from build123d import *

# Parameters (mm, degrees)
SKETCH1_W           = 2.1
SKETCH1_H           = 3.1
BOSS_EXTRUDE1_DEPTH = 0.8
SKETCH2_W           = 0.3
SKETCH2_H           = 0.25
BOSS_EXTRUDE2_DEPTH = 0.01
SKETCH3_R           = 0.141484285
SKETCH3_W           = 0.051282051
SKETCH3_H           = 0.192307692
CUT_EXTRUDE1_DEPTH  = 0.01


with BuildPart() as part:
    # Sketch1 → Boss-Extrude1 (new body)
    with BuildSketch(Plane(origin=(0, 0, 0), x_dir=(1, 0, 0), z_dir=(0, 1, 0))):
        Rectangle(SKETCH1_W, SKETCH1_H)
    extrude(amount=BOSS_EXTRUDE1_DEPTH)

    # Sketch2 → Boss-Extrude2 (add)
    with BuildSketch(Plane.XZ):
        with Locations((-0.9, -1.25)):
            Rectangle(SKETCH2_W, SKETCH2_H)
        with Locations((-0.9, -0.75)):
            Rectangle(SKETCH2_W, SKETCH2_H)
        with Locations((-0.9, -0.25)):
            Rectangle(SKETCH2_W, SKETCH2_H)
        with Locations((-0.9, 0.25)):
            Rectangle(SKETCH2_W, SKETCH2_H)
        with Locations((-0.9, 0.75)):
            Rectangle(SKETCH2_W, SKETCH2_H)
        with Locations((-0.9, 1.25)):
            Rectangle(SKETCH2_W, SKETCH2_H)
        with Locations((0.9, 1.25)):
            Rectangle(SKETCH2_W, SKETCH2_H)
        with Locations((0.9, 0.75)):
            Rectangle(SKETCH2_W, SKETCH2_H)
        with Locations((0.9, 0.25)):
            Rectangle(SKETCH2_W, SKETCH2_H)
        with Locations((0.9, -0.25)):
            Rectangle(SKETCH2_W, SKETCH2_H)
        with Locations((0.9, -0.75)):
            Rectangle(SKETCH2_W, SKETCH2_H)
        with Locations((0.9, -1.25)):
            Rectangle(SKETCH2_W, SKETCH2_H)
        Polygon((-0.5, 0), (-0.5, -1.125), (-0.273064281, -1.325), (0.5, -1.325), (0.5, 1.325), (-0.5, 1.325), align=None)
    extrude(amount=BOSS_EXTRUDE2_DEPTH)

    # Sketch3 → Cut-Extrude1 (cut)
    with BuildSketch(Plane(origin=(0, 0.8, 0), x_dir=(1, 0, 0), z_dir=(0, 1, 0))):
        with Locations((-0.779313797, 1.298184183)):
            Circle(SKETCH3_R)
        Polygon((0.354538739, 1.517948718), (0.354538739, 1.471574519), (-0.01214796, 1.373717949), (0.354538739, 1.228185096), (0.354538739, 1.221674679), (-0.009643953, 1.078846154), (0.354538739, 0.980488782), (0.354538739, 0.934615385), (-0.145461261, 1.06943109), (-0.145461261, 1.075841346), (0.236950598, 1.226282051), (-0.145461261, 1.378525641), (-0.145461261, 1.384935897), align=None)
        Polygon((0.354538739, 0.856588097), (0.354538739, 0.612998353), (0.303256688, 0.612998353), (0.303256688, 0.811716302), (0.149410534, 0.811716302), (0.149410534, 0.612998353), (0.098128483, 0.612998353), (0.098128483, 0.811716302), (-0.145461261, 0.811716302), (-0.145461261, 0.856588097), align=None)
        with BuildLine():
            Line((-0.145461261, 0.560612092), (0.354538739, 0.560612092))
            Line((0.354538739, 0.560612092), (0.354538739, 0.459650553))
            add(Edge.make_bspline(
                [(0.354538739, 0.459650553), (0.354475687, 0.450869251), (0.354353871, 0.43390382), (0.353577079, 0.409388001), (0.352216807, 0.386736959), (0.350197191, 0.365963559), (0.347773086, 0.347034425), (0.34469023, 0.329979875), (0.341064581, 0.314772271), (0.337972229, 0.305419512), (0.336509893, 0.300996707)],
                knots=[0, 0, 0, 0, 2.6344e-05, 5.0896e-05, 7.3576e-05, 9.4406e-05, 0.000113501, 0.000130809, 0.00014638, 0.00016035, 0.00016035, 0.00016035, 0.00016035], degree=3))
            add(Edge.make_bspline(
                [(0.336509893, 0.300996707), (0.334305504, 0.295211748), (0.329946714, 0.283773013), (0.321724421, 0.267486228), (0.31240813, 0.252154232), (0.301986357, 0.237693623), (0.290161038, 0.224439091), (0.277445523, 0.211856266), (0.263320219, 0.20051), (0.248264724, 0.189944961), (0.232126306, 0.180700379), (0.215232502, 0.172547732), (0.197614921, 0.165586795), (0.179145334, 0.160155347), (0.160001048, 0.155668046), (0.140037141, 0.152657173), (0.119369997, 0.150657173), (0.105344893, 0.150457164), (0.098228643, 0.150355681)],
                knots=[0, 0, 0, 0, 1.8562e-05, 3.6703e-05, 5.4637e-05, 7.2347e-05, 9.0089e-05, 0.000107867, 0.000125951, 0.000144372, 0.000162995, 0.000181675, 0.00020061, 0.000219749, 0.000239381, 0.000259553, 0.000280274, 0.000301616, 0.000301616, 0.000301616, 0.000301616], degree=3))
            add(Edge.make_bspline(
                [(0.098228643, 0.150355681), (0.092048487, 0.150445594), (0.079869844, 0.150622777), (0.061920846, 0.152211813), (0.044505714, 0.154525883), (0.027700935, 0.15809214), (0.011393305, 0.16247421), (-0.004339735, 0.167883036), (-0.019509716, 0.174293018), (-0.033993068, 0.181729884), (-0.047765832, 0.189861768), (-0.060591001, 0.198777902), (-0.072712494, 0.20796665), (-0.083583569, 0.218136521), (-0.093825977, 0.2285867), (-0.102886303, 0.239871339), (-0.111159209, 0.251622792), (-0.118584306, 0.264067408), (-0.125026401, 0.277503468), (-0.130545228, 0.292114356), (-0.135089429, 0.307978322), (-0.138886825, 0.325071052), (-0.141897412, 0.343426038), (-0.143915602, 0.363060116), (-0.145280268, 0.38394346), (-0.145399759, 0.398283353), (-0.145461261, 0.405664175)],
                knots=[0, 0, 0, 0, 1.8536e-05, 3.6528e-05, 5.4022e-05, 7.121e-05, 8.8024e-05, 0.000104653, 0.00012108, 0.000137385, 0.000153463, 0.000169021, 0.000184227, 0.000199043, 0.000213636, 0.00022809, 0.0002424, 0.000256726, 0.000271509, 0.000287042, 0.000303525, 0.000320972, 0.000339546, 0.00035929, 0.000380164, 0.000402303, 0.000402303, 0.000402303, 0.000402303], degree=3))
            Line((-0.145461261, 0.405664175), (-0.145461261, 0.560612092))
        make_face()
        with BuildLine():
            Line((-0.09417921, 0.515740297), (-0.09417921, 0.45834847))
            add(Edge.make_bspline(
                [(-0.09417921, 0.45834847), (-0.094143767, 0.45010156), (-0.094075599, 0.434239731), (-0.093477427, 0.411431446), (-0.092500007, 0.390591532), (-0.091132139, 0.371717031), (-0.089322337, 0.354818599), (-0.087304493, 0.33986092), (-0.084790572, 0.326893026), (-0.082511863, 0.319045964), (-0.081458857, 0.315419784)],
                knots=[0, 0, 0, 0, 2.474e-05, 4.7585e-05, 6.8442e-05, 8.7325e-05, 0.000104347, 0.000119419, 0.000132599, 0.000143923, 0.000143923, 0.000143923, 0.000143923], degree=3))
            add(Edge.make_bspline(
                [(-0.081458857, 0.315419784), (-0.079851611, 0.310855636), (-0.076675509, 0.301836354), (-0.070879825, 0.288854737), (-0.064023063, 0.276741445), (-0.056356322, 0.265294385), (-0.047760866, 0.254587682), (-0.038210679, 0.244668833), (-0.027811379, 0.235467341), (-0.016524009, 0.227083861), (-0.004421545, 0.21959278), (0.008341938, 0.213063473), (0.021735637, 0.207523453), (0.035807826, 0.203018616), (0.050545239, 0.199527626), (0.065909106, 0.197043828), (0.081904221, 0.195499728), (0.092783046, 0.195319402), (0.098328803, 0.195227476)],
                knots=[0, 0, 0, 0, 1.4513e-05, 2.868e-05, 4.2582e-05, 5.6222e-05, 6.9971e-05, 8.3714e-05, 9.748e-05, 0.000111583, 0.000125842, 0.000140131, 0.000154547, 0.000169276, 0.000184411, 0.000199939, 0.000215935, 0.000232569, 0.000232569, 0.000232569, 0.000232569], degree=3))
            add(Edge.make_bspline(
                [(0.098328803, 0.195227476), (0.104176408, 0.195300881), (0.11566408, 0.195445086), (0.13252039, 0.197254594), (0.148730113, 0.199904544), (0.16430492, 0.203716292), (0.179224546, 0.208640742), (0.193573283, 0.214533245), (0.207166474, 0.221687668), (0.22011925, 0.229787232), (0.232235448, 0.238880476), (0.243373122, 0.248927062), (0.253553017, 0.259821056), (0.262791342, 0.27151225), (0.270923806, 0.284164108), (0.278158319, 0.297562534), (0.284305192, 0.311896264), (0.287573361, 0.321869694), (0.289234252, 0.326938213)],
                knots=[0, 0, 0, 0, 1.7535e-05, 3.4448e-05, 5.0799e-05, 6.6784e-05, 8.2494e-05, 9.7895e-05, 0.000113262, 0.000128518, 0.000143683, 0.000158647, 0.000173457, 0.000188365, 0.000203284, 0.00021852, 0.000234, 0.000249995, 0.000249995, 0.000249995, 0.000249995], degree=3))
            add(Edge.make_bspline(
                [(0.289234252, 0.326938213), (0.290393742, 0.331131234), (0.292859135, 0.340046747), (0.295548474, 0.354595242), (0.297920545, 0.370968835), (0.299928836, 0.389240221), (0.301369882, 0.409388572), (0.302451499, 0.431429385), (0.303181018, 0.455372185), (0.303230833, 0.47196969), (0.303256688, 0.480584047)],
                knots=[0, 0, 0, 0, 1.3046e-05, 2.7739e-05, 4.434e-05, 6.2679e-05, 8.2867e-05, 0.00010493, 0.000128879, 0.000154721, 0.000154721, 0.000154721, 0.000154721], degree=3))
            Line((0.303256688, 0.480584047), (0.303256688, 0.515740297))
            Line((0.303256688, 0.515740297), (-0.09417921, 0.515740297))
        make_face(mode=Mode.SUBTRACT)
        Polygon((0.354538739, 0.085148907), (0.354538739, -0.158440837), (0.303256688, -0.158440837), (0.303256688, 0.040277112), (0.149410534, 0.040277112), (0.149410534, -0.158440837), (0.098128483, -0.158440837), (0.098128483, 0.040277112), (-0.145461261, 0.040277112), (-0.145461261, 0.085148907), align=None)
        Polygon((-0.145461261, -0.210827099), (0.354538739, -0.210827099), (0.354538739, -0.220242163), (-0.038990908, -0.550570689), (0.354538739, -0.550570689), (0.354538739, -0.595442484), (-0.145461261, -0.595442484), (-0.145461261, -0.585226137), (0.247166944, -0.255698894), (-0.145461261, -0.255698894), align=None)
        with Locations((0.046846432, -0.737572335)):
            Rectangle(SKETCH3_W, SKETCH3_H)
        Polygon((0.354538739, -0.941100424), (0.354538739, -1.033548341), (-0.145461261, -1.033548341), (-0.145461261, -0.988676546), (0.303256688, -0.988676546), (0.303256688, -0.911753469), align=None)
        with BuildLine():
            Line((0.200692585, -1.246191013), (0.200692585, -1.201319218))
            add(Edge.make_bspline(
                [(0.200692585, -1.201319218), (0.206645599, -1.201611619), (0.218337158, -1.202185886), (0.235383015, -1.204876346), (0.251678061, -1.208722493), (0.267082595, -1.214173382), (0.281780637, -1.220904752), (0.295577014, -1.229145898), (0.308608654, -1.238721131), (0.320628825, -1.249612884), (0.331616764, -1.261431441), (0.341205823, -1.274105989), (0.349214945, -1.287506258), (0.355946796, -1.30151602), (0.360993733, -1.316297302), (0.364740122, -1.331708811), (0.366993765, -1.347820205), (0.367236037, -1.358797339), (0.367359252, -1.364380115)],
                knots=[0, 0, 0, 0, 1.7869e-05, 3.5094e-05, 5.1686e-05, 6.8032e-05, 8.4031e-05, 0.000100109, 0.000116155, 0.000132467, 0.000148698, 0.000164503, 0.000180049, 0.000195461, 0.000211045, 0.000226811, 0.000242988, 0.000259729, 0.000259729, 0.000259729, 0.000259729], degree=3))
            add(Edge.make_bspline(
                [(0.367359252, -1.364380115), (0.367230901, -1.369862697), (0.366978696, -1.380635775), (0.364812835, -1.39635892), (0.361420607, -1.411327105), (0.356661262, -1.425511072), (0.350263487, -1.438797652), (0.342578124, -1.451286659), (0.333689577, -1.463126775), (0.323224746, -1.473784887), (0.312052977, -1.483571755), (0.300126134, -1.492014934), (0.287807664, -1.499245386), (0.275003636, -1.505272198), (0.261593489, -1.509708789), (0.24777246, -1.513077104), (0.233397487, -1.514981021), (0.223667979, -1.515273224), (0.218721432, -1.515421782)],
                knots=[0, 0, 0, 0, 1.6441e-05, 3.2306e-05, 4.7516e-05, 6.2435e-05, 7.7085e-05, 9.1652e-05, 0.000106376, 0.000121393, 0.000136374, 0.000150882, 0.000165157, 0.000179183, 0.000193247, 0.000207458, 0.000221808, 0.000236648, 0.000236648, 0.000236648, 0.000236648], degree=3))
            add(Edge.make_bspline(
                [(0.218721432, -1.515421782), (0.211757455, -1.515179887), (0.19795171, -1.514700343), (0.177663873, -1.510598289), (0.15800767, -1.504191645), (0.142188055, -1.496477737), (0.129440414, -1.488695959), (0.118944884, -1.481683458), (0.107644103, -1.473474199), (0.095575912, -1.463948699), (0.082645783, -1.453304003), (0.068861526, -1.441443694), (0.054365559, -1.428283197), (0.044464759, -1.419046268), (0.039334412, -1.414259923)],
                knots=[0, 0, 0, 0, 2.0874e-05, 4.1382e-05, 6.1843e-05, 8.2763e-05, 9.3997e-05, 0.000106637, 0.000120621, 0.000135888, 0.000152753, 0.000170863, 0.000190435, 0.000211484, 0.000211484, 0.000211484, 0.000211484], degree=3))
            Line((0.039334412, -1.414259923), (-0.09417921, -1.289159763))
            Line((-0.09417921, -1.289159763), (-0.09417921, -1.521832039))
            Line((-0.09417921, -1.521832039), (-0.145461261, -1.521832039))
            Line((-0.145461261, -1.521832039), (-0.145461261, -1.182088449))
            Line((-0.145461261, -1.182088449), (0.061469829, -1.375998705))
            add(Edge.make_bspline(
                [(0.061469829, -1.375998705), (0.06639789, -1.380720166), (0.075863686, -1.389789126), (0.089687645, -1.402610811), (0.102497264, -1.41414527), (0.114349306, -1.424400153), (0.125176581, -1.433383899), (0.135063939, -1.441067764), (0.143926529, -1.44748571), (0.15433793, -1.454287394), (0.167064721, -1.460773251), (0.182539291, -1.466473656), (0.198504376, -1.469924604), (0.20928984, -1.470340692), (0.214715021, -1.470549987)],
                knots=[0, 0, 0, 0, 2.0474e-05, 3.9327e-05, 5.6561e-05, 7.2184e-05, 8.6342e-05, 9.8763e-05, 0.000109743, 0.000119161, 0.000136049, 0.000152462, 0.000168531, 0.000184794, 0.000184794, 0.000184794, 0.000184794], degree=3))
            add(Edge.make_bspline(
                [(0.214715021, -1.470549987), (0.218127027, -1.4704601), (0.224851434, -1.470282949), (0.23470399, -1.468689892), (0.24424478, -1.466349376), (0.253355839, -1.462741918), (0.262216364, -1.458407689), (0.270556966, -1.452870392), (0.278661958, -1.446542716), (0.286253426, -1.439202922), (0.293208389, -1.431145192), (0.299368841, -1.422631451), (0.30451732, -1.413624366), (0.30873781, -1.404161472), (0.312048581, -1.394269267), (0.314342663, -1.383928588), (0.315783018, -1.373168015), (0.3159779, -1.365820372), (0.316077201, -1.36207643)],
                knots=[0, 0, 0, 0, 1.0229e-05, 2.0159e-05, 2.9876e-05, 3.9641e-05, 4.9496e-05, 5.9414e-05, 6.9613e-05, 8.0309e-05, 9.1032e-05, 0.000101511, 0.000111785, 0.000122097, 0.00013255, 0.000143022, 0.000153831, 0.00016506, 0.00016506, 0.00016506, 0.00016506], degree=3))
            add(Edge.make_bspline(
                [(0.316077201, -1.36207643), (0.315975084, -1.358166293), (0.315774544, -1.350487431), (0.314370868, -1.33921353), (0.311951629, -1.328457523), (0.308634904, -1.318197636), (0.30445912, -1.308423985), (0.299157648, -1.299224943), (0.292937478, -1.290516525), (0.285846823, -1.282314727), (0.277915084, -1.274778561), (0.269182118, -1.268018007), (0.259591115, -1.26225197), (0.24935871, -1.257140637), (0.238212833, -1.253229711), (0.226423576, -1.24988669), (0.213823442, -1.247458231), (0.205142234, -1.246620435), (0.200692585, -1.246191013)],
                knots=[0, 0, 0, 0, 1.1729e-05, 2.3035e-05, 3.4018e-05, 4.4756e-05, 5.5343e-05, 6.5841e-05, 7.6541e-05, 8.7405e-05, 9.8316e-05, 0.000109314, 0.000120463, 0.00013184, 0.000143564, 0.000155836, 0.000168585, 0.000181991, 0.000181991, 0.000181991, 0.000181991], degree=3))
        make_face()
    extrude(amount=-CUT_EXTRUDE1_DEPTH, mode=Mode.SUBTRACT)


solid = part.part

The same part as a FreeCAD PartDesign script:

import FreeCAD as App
import Part
import Sketcher


def add_polygon(sketch, points):
    """Adds a closed chain of lines whose ends are joined by coincident constraints."""
    first, n = sketch.GeometryCount, len(points)
    for a, b in zip(points, points[1:] + points[:1]):
        sketch.addGeometry(Part.LineSegment(App.Vector(*a, 0), App.Vector(*b, 0)), False)
    for i in range(n):
        sketch.addConstraint(Sketcher.Constraint("Coincident", first + i, 2, first + (i + 1) % n, 1))

doc = App.newDocument("Part")
params = doc.addObject("Spreadsheet::Sheet", "Params")
for row, (alias, value) in enumerate([
    ("sketch1_width", "2.1 mm"),
    ("sketch1_height", "3.1 mm"),
    ("pad1_length", "0.8 mm"),
    ("sketch2_width", "1 mm"),
    ("sketch2_width2", "0.3 mm"),
    ("sketch2_height", "0.25 mm"),
    ("sketch2_height2", "2.65 mm"),
    ("sketch2_height3", "2.45 mm"),
    ("pad2_length", "0.01 mm"),
    ("sketch3_width", "0.5 mm"),
    ("sketch3_width2", "0.5 mm"),
    ("sketch3_width3", "0.5 mm"),
    ("sketch3_width4", "0.5 mm"),
    ("sketch3_width5", "0.5 mm"),
    ("pocket1_length", "0.01 mm"),
], start=1):
    params.set(f"A{row}", alias)
    params.set(f"B{row}", "=" + value)
    params.setAlias(f"B{row}", alias)

body = doc.addObject("PartDesign::Body", "Body")

# Sketch on XZ plane
sketch1 = doc.addObject("Sketcher::SketchObject", "Sketch")
body.addObject(sketch1)
sketch1.AttachmentSupport = (doc.XZ_Plane, [""])
sketch1.MapMode = "FlatFace"
add_polygon(sketch1, [(-1.1, -1.6), (-1.1, 1.6), (1.1, 1.6), (1.1, -1.6)])  # lines 0-3
sketch1.addConstraint([
    Sketcher.Constraint("Vertical", 0),
    Sketcher.Constraint("Horizontal", 1),
    Sketcher.Constraint("Vertical", 2),
    Sketcher.Constraint("Horizontal", 3),
    Sketcher.Constraint("Symmetric", 0, 2, 2, 2, -1, 1),
    Sketcher.Constraint("DistanceX", 1, 1, 1, 2, 2.1),
    Sketcher.Constraint("DistanceY", 0, 1, 0, 2, 3.1),
])
sketch1.setExpression("Constraints[9]", "Params.sketch1_width")
sketch1.setExpression("Constraints[10]", "Params.sketch1_height")
pad1 = doc.addObject("PartDesign::Pad", "Pad")
body.addObject(pad1)
pad1.Profile = sketch1
pad1.setExpression("Length", "Params.pad1_length")
pad1.Reversed = True

# Sketch on XZ plane
sketch2 = doc.addObject("Sketcher::SketchObject", "Sketch001")
body.addObject(sketch2)
sketch2.AttachmentSupport = (doc.XZ_Plane, [""])
sketch2.MapMode = "FlatFace"
add_polygon(sketch2, [(-1.05, -1.12), (-1.05, -1.38), (-0.75, -1.38), (-0.75, -1.12)])  # lines 0-3
add_polygon(sketch2, [(-1.05, -0.62), (-1.05, -0.88), (-0.75, -0.88), (-0.75, -0.62)])  # lines 4-7
add_polygon(sketch2, [(-1.05, -0.12), (-1.05, -0.38), (-0.75, -0.38), (-0.75, -0.12)])  # lines 8-11
add_polygon(sketch2, [(-1.05, 0.38), (-1.05, 0.12), (-0.75, 0.12), (-0.75, 0.38)])  # lines 12-15
add_polygon(sketch2, [(-1.05, 0.88), (-1.05, 0.62), (-0.75, 0.62), (-0.75, 0.88)])  # lines 16-19
add_polygon(sketch2, [(-1.05, 1.38), (-1.05, 1.12), (-0.75, 1.12), (-0.75, 1.38)])  # lines 20-23
add_polygon(sketch2, [(0.75, 1.38), (0.75, 1.12), (1.05, 1.12), (1.05, 1.38)])  # lines 24-27
add_polygon(sketch2, [(0.75, 0.88), (0.75, 0.62), (1.05, 0.62), (1.05, 0.88)])  # lines 28-31
add_polygon(sketch2, [(0.75, 0.38), (0.75, 0.12), (1.05, 0.12), (1.05, 0.38)])  # lines 32-35
add_polygon(sketch2, [(0.75, -0.12), (0.75, -0.38), (1.05, -0.38), (1.05, -0.12)])  # lines 36-39
add_polygon(sketch2, [(0.75, -0.62), (0.75, -0.88), (1.05, -0.88), (1.05, -0.62)])  # lines 40-43
add_polygon(sketch2, [(0.75, -1.12), (0.75, -1.38), (1.05, -1.38), (1.05, -1.12)])  # lines 44-47
add_polygon(sketch2, [(-0.5, -1.12), (-0.27, -1.32), (0.5, -1.32), (0.5, 1.32), (-0.5, 1.32)])  # lines 48-52
sketch2.addConstraint([
    Sketcher.Constraint("Vertical", 0),
    Sketcher.Constraint("Horizontal", 1),
    Sketcher.Constraint("Vertical", 2),
    Sketcher.Constraint("Horizontal", 3),
    Sketcher.Constraint("Vertical", 4),
    Sketcher.Constraint("Horizontal", 5),
    Sketcher.Constraint("Vertical", 6),
    Sketcher.Constraint("Horizontal", 7),
    Sketcher.Constraint("Vertical", 8),
    Sketcher.Constraint("Horizontal", 9),
    Sketcher.Constraint("Vertical", 10),
    Sketcher.Constraint("Horizontal", 11),
    Sketcher.Constraint("Vertical", 12),
    Sketcher.Constraint("Horizontal", 13),
    Sketcher.Constraint("Vertical", 14),
    Sketcher.Constraint("Horizontal", 15),
    Sketcher.Constraint("Vertical", 16),
    Sketcher.Constraint("Horizontal", 17),
    Sketcher.Constraint("Vertical", 18),
    Sketcher.Constraint("Horizontal", 19),
    Sketcher.Constraint("Vertical", 20),
    Sketcher.Constraint("Horizontal", 21),
    Sketcher.Constraint("Vertical", 22),
    Sketcher.Constraint("Horizontal", 23),
    Sketcher.Constraint("Vertical", 24),
    Sketcher.Constraint("Horizontal", 25),
    Sketcher.Constraint("Vertical", 26),
    Sketcher.Constraint("Horizontal", 27),
    Sketcher.Constraint("Vertical", 28),
    Sketcher.Constraint("Horizontal", 29),
    Sketcher.Constraint("Vertical", 30),
    Sketcher.Constraint("Horizontal", 31),
    Sketcher.Constraint("Vertical", 32),
    Sketcher.Constraint("Horizontal", 33),
    Sketcher.Constraint("Vertical", 34),
    Sketcher.Constraint("Horizontal", 35),
    Sketcher.Constraint("Vertical", 36),
    Sketcher.Constraint("Horizontal", 37),
    Sketcher.Constraint("Vertical", 38),
    Sketcher.Constraint("Horizontal", 39),
    Sketcher.Constraint("Vertical", 40),
    Sketcher.Constraint("Horizontal", 41),
    Sketcher.Constraint("Vertical", 42),
    Sketcher.Constraint("Horizontal", 43),
    Sketcher.Constraint("Vertical", 44),
    Sketcher.Constraint("Horizontal", 45),
    Sketcher.Constraint("Vertical", 46),
    Sketcher.Constraint("Horizontal", 47),
    Sketcher.Constraint("Horizontal", 49),
    Sketcher.Constraint("Vertical", 50),
    Sketcher.Constraint("Horizontal", 51),
    Sketcher.Constraint("Vertical", 52),
    Sketcher.Constraint("Symmetric", 2, 2, 24, 2, -1, 1),
    Sketcher.Constraint("Symmetric", 0, 2, 26, 2, -1, 1),
    Sketcher.Constraint("Symmetric", 6, 2, 28, 2, -1, 1),
    Sketcher.Constraint("Symmetric", 4, 2, 30, 2, -1, 1),
    Sketcher.Constraint("Symmetric", 10, 2, 32, 2, -1, 1),
    Sketcher.Constraint("Symmetric", 8, 2, 34, 2, -1, 1),
    Sketcher.Constraint("Symmetric", 14, 2, 36, 2, -1, 1),
    Sketcher.Constraint("Symmetric", 12, 2, 38, 2, -1, 1),
    Sketcher.Constraint("Symmetric", 18, 2, 40, 2, -1, 1),
    Sketcher.Constraint("Symmetric", 16, 2, 42, 2, -1, 1),
    Sketcher.Constraint("Symmetric", 22, 2, 44, 2, -1, 1),
    Sketcher.Constraint("Symmetric", 20, 2, 46, 2, -1, 1),
    Sketcher.Constraint("Symmetric", 49, 2, 51, 2, -1, 1),
    Sketcher.Constraint("Symmetric", 21, 2, 24, 2, -2),
    Sketcher.Constraint("Symmetric", 23, 2, 26, 2, -2),
    Sketcher.Constraint("Symmetric", 17, 2, 28, 2, -2),
    Sketcher.Constraint("Symmetric", 19, 2, 30, 2, -2),
    Sketcher.Constraint("Symmetric", 13, 2, 32, 2, -2),
    Sketcher.Constraint("Symmetric", 15, 2, 34, 2, -2),
    Sketcher.Constraint("Horizontal", 47, 2, 52, 2),
    Sketcher.Constraint("Vertical", 3, 2, 4, 2),
    Sketcher.Constraint("Vertical", 2, 2, 5, 2),
    Sketcher.Constraint("Vertical", 7, 2, 8, 2),
    Sketcher.Constraint("Vertical", 6, 2, 9, 2),
    Sketcher.Constraint("Equal", 2, 4),
    Sketcher.Constraint("Equal", 6, 8),
    Sketcher.Constraint("DistanceX", 51, 2, 51, 1, 1.0),
    Sketcher.Constraint("DistanceX", 1, 1, 1, 2, 0.3),
    Sketcher.Constraint("DistanceY", 32, 2, 24, 2, 1.0),
    Sketcher.Constraint("DistanceY", 36, 2, 28, 2, 1.0),
    Sketcher.Constraint("DistanceY", 0, 2, 0, 1, 0.25),
    Sketcher.Constraint("DistanceY", 50, 1, 50, 2, 2.65),
    Sketcher.Constraint("DistanceY", 52, 2, 52, 1, 2.45),
    Sketcher.Constraint("DistanceX", 21, 2, 24, 2, 1.5),
    Sketcher.Constraint("Distance", 48, 0.302489),
])
sketch2.setExpression("Constraints[131]", "Params.sketch2_width")
sketch2.setExpression("Constraints[132]", "Params.sketch2_width2")
sketch2.setExpression("Constraints[135]", "Params.sketch2_height")
sketch2.setExpression("Constraints[136]", "Params.sketch2_height2")
sketch2.setExpression("Constraints[137]", "Params.sketch2_height3")
pad2 = doc.addObject("PartDesign::Pad", "Pad001")
body.addObject(pad2)
pad2.Profile = sketch2
pad2.setExpression("Length", "Params.pad2_length")

# Sketch on XZ plane
sketch3 = doc.addObject("Sketcher::SketchObject", "Sketch002")
body.addObject(sketch3)
sketch3.AttachmentSupport = (doc.XZ_Plane, [""])
sketch3.MapMode = "FlatFace"
sketch3.AttachmentOffset = App.Placement(App.Vector(0, 0, -0.8), App.Rotation())
sketch3.addGeometry(Part.Circle(App.Vector(-0.779314, -1.298184, 0), App.Vector(0, 0, 1), 0.141484), False)  # 0
add_polygon(sketch3, [(0.354539, -1.471575), (0.354539, -1.517949), (-0.145461, -1.384936), (-0.145461, -1.378526), (0.236951, -1.226282), (-0.145461, -1.075841), (-0.145461, -1.069431), (0.354539, -0.934615), (0.354539, -0.980489), (-0.009644, -1.078846), (0.354539, -1.221675), (0.354539, -1.228185), (-0.012148, -1.373718)])  # lines 1-13
add_polygon(sketch3, [(0.354539, -0.612998), (0.354539, -0.856588), (-0.145461, -0.856588), (-0.145461, -0.811716), (0.098128, -0.811716), (0.098128, -0.612998), (0.149411, -0.612998), (0.149411, -0.811716), (0.303257, -0.811716), (0.303257, -0.612998)])  # lines 14-23
sketch3.addGeometry(Part.LineSegment(App.Vector(0.354539, -0.560612, 0), App.Vector(-0.145461, -0.560612, 0)), False)  # 24
sketch3.addGeometry(Part.LineSegment(App.Vector(-0.145461, -0.560612, 0), App.Vector(-0.145461, -0.405664, 0)), False)  # 25
sketch3.addGeometry(Part.BSplineCurve([App.Vector(0.098229, -0.150356, 0), App.Vector(0.092048, -0.150446, 0), App.Vector(0.07987, -0.150623, 0), App.Vector(0.061921, -0.152212, 0), App.Vector(0.044506, -0.154526, 0), App.Vector(0.027701, -0.158092, 0), App.Vector(0.011393, -0.162474, 0), App.Vector(-0.00434, -0.167883, 0), App.Vector(-0.01951, -0.174293, 0), App.Vector(-0.033993, -0.18173, 0), App.Vector(-0.047766, -0.189862, 0), App.Vector(-0.060591, -0.198778, 0), App.Vector(-0.072712, -0.207967, 0), App.Vector(-0.083584, -0.218137, 0), App.Vector(-0.093826, -0.228587, 0), App.Vector(-0.102886, -0.239871, 0), App.Vector(-0.111159, -0.251623, 0), App.Vector(-0.118584, -0.264067, 0), App.Vector(-0.125026, -0.277503, 0), App.Vector(-0.130545, -0.292114, 0), App.Vector(-0.135089, -0.307978, 0), App.Vector(-0.138887, -0.325071, 0), App.Vector(-0.141897, -0.343426, 0), App.Vector(-0.143916, -0.36306, 0), App.Vector(-0.14528, -0.383943, 0), App.Vector(-0.1454, -0.398283, 0), App.Vector(-0.145461, -0.405664, 0)], [4, 1, 1, 1, 1, 1, 1, 1, 1, 1, 1, 1, 1, 1, 1, 1, 1, 1, 1, 1, 1, 1, 1, 1, 4], [0, 0.000018536, 0.000036528, 0.000054022, 0.00007121, 0.000088024, 0.000104653, 0.00012108, 0.000137385, 0.000153463, 0.000169021, 0.000184227, 0.000199043, 0.000213636, 0.00022809, 0.0002424, 0.000256726, 0.000271509, 0.000287042, 0.000303525, 0.000320972, 0.000339546, 0.00035929, 0.000380164, 0.000402303], False, 3, [1, 1, 1, 1, 1, 1, 1, 1, 1, 1, 1, 1, 1, 1, 1, 1, 1, 1, 1, 1, 1, 1, 1, 1, 1, 1, 1], False), False)  # 26
sketch3.addGeometry(Part.BSplineCurve([App.Vector(0.33651, -0.300997, 0), App.Vector(0.334306, -0.295212, 0), App.Vector(0.329947, -0.283773, 0), App.Vector(0.321724, -0.267486, 0), App.Vector(0.312408, -0.252154, 0), App.Vector(0.301986, -0.237694, 0), App.Vector(0.290161, -0.224439, 0), App.Vector(0.277446, -0.211856, 0), App.Vector(0.26332, -0.20051, 0), App.Vector(0.248265, -0.189945, 0), App.Vector(0.232126, -0.1807, 0), App.Vector(0.215233, -0.172548, 0), App.Vector(0.197615, -0.165587, 0), App.Vector(0.179145, -0.160155, 0), App.Vector(0.160001, -0.155668, 0), App.Vector(0.140037, -0.152657, 0), App.Vector(0.11937, -0.150657, 0), App.Vector(0.105345, -0.150457, 0), App.Vector(0.098229, -0.150356, 0)], [4, 1, 1, 1, 1, 1, 1, 1, 1, 1, 1, 1, 1, 1, 1, 1, 4], [0, 0.000018562, 0.000036703, 0.000054637, 0.000072347, 0.000090089, 0.000107867, 0.000125951, 0.000144372, 0.000162995, 0.000181675, 0.00020061, 0.000219749, 0.000239381, 0.000259553, 0.000280274, 0.000301616], False, 3, [1, 1, 1, 1, 1, 1, 1, 1, 1, 1, 1, 1, 1, 1, 1, 1, 1, 1, 1], False), False)  # 27
sketch3.addGeometry(Part.BSplineCurve([App.Vector(0.354539, -0.459651, 0), App.Vector(0.354476, -0.450869, 0), App.Vector(0.354354, -0.433904, 0), App.Vector(0.353577, -0.409388, 0), App.Vector(0.352217, -0.386737, 0), App.Vector(0.350197, -0.365964, 0), App.Vector(0.347773, -0.347034, 0), App.Vector(0.34469, -0.32998, 0), App.Vector(0.341065, -0.314772, 0), App.Vector(0.337972, -0.30542, 0), App.Vector(0.33651, -0.300997, 0)], [4, 1, 1, 1, 1, 1, 1, 1, 4], [0, 0.000026344, 0.000050896, 0.000073576, 0.000094406, 0.000113501, 0.000130809, 0.00014638, 0.00016035], False, 3, [1, 1, 1, 1, 1, 1, 1, 1, 1, 1, 1], False), False)  # 28
sketch3.addGeometry(Part.LineSegment(App.Vector(0.354539, -0.459651, 0), App.Vector(0.354539, -0.560612, 0)), False)  # 29
sketch3.addGeometry(Part.LineSegment(App.Vector(-0.094179, -0.51574, 0), App.Vector(0.303257, -0.51574, 0)), False)  # 30
sketch3.addGeometry(Part.LineSegment(App.Vector(0.303257, -0.51574, 0), App.Vector(0.303257, -0.480584, 0)), False)  # 31
sketch3.addGeometry(Part.BSplineCurve([App.Vector(0.289234, -0.326938, 0), App.Vector(0.290394, -0.331131, 0), App.Vector(0.292859, -0.340047, 0), App.Vector(0.295548, -0.354595, 0), App.Vector(0.297921, -0.370969, 0), App.Vector(0.299929, -0.38924, 0), App.Vector(0.30137, -0.409389, 0), App.Vector(0.302451, -0.431429, 0), App.Vector(0.303181, -0.455372, 0), App.Vector(0.303231, -0.47197, 0), App.Vector(0.303257, -0.480584, 0)], [4, 1, 1, 1, 1, 1, 1, 1, 4], [0, 0.000013046, 0.000027739, 0.00004434, 0.000062679, 0.000082867, 0.00010493, 0.000128879, 0.000154721], False, 3, [1, 1, 1, 1, 1, 1, 1, 1, 1, 1, 1], False), False)  # 32
sketch3.addGeometry(Part.BSplineCurve([App.Vector(0.098329, -0.195227, 0), App.Vector(0.104176, -0.195301, 0), App.Vector(0.115664, -0.195445, 0), App.Vector(0.13252, -0.197255, 0), App.Vector(0.14873, -0.199905, 0), App.Vector(0.164305, -0.203716, 0), App.Vector(0.179225, -0.208641, 0), App.Vector(0.193573, -0.214533, 0), App.Vector(0.207166, -0.221688, 0), App.Vector(0.220119, -0.229787, 0), App.Vector(0.232235, -0.23888, 0), App.Vector(0.243373, -0.248927, 0), App.Vector(0.253553, -0.259821, 0), App.Vector(0.262791, -0.271512, 0), App.Vector(0.270924, -0.284164, 0), App.Vector(0.278158, -0.297563, 0), App.Vector(0.284305, -0.311896, 0), App.Vector(0.287573, -0.32187, 0), App.Vector(0.289234, -0.326938, 0)], [4, 1, 1, 1, 1, 1, 1, 1, 1, 1, 1, 1, 1, 1, 1, 1, 4], [0, 0.000017535, 0.000034448, 0.000050799, 0.000066784, 0.000082494, 0.000097895, 0.000113262, 0.000128518, 0.000143683, 0.000158647, 0.000173457, 0.000188365, 0.000203284, 0.00021852, 0.000234, 0.000249995], False, 3, [1, 1, 1, 1, 1, 1, 1, 1, 1, 1, 1, 1, 1, 1, 1, 1, 1, 1, 1], False), False)  # 33
sketch3.addGeometry(Part.BSplineCurve([App.Vector(-0.081459, -0.31542, 0), App.Vector(-0.079852, -0.310856, 0), App.Vector(-0.076676, -0.301836, 0), App.Vector(-0.07088, -0.288855, 0), App.Vector(-0.064023, -0.276741, 0), App.Vector(-0.056356, -0.265294, 0), App.Vector(-0.047761, -0.254588, 0), App.Vector(-0.038211, -0.244669, 0), App.Vector(-0.027811, -0.235467, 0), App.Vector(-0.016524, -0.227084, 0), App.Vector(-0.004422, -0.219593, 0), App.Vector(0.008342, -0.213063, 0), App.Vector(0.021736, -0.207523, 0), App.Vector(0.035808, -0.203019, 0), App.Vector(0.050545, -0.199528, 0), App.Vector(0.065909, -0.197044, 0), App.Vector(0.081904, -0.1955, 0), App.Vector(0.092783, -0.195319, 0), App.Vector(0.098329, -0.195227, 0)], [4, 1, 1, 1, 1, 1, 1, 1, 1, 1, 1, 1, 1, 1, 1, 1, 4], [0, 0.000014513, 0.00002868, 0.000042582, 0.000056222, 0.000069971, 0.000083714, 0.00009748, 0.000111583, 0.000125842, 0.000140131, 0.000154547, 0.000169276, 0.000184411, 0.000199939, 0.000215935, 0.000232569], False, 3, [1, 1, 1, 1, 1, 1, 1, 1, 1, 1, 1, 1, 1, 1, 1, 1, 1, 1, 1], False), False)  # 34
sketch3.addGeometry(Part.BSplineCurve([App.Vector(-0.094179, -0.458348, 0), App.Vector(-0.094144, -0.450102, 0), App.Vector(-0.094076, -0.43424, 0), App.Vector(-0.093477, -0.411431, 0), App.Vector(-0.0925, -0.390592, 0), App.Vector(-0.091132, -0.371717, 0), App.Vector(-0.089322, -0.354819, 0), App.Vector(-0.087304, -0.339861, 0), App.Vector(-0.084791, -0.326893, 0), App.Vector(-0.082512, -0.319046, 0), App.Vector(-0.081459, -0.31542, 0)], [4, 1, 1, 1, 1, 1, 1, 1, 4], [0, 0.00002474, 0.000047585, 0.000068442, 0.000087325, 0.000104347, 0.000119419, 0.000132599, 0.000143923], False, 3, [1, 1, 1, 1, 1, 1, 1, 1, 1, 1, 1], False), False)  # 35
sketch3.addGeometry(Part.LineSegment(App.Vector(-0.094179, -0.458348, 0), App.Vector(-0.094179, -0.51574, 0)), False)  # 36
add_polygon(sketch3, [(0.354539, 0.158441), (0.354539, -0.085149), (-0.145461, -0.085149), (-0.145461, -0.040277), (0.098128, -0.040277), (0.098128, 0.158441), (0.149411, 0.158441), (0.149411, -0.040277), (0.303257, -0.040277), (0.303257, 0.158441)])  # lines 37-46
add_polygon(sketch3, [(0.354539, 0.210827), (-0.145461, 0.210827), (-0.145461, 0.255699), (0.247167, 0.255699), (-0.145461, 0.585226), (-0.145461, 0.595442), (0.354539, 0.595442), (0.354539, 0.550571), (-0.038991, 0.550571), (0.354539, 0.220242)])  # lines 47-56
add_polygon(sketch3, [(0.021205, 0.641418), (0.021205, 0.833726), (0.072487, 0.833726), (0.072487, 0.641418)])  # lines 57-60
add_polygon(sketch3, [(0.354539, 1.033548), (0.354539, 0.9411), (0.303257, 0.911753), (0.303257, 0.988677), (-0.145461, 0.988677), (-0.145461, 1.033548)])  # lines 61-66
sketch3.addGeometry(Part.LineSegment(App.Vector(0.200693, 1.201319, 0), App.Vector(0.200693, 1.246191, 0)), False)  # 67
sketch3.addGeometry(Part.BSplineCurve([App.Vector(0.316077, 1.362076, 0), App.Vector(0.315975, 1.358166, 0), App.Vector(0.315775, 1.350487, 0), App.Vector(0.314371, 1.339214, 0), App.Vector(0.311952, 1.328458, 0), App.Vector(0.308635, 1.318198, 0), App.Vector(0.304459, 1.308424, 0), App.Vector(0.299158, 1.299225, 0), App.Vector(0.292937, 1.290517, 0), App.Vector(0.285847, 1.282315, 0), App.Vector(0.277915, 1.274779, 0), App.Vector(0.269182, 1.268018, 0), App.Vector(0.259591, 1.262252, 0), App.Vector(0.249359, 1.257141, 0), App.Vector(0.238213, 1.25323, 0), App.Vector(0.226424, 1.249887, 0), App.Vector(0.213823, 1.247458, 0), App.Vector(0.205142, 1.24662, 0), App.Vector(0.200693, 1.246191, 0)], [4, 1, 1, 1, 1, 1, 1, 1, 1, 1, 1, 1, 1, 1, 1, 1, 4], [0, 0.000011729, 0.000023035, 0.000034018, 0.000044756, 0.000055343, 0.000065841, 0.000076541, 0.000087405, 0.000098316, 0.000109314, 0.000120463, 0.00013184, 0.000143564, 0.000155836, 0.000168585, 0.000181991], False, 3, [1, 1, 1, 1, 1, 1, 1, 1, 1, 1, 1, 1, 1, 1, 1, 1, 1, 1, 1], False), False)  # 68
sketch3.addGeometry(Part.BSplineCurve([App.Vector(0.214715, 1.47055, 0), App.Vector(0.218127, 1.47046, 0), App.Vector(0.224851, 1.470283, 0), App.Vector(0.234704, 1.46869, 0), App.Vector(0.244245, 1.466349, 0), App.Vector(0.253356, 1.462742, 0), App.Vector(0.262216, 1.458408, 0), App.Vector(0.270557, 1.45287, 0), App.Vector(0.278662, 1.446543, 0), App.Vector(0.286253, 1.439203, 0), App.Vector(0.293208, 1.431145, 0), App.Vector(0.299369, 1.422631, 0), App.Vector(0.304517, 1.413624, 0), App.Vector(0.308738, 1.404161, 0), App.Vector(0.312049, 1.394269, 0), App.Vector(0.314343, 1.383929, 0), App.Vector(0.315783, 1.373168, 0), App.Vector(0.315978, 1.36582, 0), App.Vector(0.316077, 1.362076, 0)], [4, 1, 1, 1, 1, 1, 1, 1, 1, 1, 1, 1, 1, 1, 1, 1, 4], [0, 0.000010229, 0.000020159, 0.000029876, 0.000039641, 0.000049496, 0.000059414, 0.000069613, 0.000080309, 0.000091032, 0.000101511, 0.000111785, 0.000122097, 0.00013255, 0.000143022, 0.000153831, 0.00016506], False, 3, [1, 1, 1, 1, 1, 1, 1, 1, 1, 1, 1, 1, 1, 1, 1, 1, 1, 1, 1], False), False)  # 69
sketch3.addGeometry(Part.BSplineCurve([App.Vector(0.06147, 1.375999, 0), App.Vector(0.066398, 1.38072, 0), App.Vector(0.075864, 1.389789, 0), App.Vector(0.089688, 1.402611, 0), App.Vector(0.102497, 1.414145, 0), App.Vector(0.114349, 1.4244, 0), App.Vector(0.125177, 1.433384, 0), App.Vector(0.135064, 1.441068, 0), App.Vector(0.143927, 1.447486, 0), App.Vector(0.154338, 1.454287, 0), App.Vector(0.167065, 1.460773, 0), App.Vector(0.182539, 1.466474, 0), App.Vector(0.198504, 1.469925, 0), App.Vector(0.20929, 1.470341, 0), App.Vector(0.214715, 1.47055, 0)], [4, 1, 1, 1, 1, 1, 1, 1, 1, 1, 1, 1, 4], [0, 0.000020474, 0.000039327, 0.000056561, 0.000072184, 0.000086342, 0.000098763, 0.000109743, 0.000119161, 0.000136049, 0.000152462, 0.000168531, 0.000184794], False, 3, [1, 1, 1, 1, 1, 1, 1, 1, 1, 1, 1, 1, 1, 1, 1], False), False)  # 70
sketch3.addGeometry(Part.LineSegment(App.Vector(0.06147, 1.375999, 0), App.Vector(-0.145461, 1.182088, 0)), False)  # 71
sketch3.addGeometry(Part.LineSegment(App.Vector(-0.145461, 1.182088, 0), App.Vector(-0.145461, 1.521832, 0)), False)  # 72
sketch3.addGeometry(Part.LineSegment(App.Vector(-0.145461, 1.521832, 0), App.Vector(-0.094179, 1.521832, 0)), False)  # 73
sketch3.addGeometry(Part.LineSegment(App.Vector(-0.094179, 1.521832, 0), App.Vector(-0.094179, 1.28916, 0)), False)  # 74
sketch3.addGeometry(Part.LineSegment(App.Vector(-0.094179, 1.28916, 0), App.Vector(0.039334, 1.41426, 0)), False)  # 75
sketch3.addGeometry(Part.BSplineCurve([App.Vector(0.218721, 1.515422, 0), App.Vector(0.211757, 1.51518, 0), App.Vector(0.197952, 1.5147, 0), App.Vector(0.177664, 1.510598, 0), App.Vector(0.158008, 1.504192, 0), App.Vector(0.142188, 1.496478, 0), App.Vector(0.12944, 1.488696, 0), App.Vector(0.118945, 1.481683, 0), App.Vector(0.107644, 1.473474, 0), App.Vector(0.095576, 1.463949, 0), App.Vector(0.082646, 1.453304, 0), App.Vector(0.068862, 1.441444, 0), App.Vector(0.054366, 1.428283, 0), App.Vector(0.044465, 1.419046, 0), App.Vector(0.039334, 1.41426, 0)], [4, 1, 1, 1, 1, 1, 1, 1, 1, 1, 1, 1, 4], [0, 0.000020874, 0.000041382, 0.000061843, 0.000082763, 0.000093997, 0.000106637, 0.000120621, 0.000135888, 0.000152753, 0.000170863, 0.000190435, 0.000211484], False, 3, [1, 1, 1, 1, 1, 1, 1, 1, 1, 1, 1, 1, 1, 1, 1], False), False)  # 76
sketch3.addGeometry(Part.BSplineCurve([App.Vector(0.367359, 1.36438, 0), App.Vector(0.367231, 1.369863, 0), App.Vector(0.366979, 1.380636, 0), App.Vector(0.364813, 1.396359, 0), App.Vector(0.361421, 1.411327, 0), App.Vector(0.356661, 1.425511, 0), App.Vector(0.350263, 1.438798, 0), App.Vector(0.342578, 1.451287, 0), App.Vector(0.33369, 1.463127, 0), App.Vector(0.323225, 1.473785, 0), App.Vector(0.312053, 1.483572, 0), App.Vector(0.300126, 1.492015, 0), App.Vector(0.287808, 1.499245, 0), App.Vector(0.275004, 1.505272, 0), App.Vector(0.261593, 1.509709, 0), App.Vector(0.247772, 1.513077, 0), App.Vector(0.233397, 1.514981, 0), App.Vector(0.223668, 1.515273, 0), App.Vector(0.218721, 1.515422, 0)], [4, 1, 1, 1, 1, 1, 1, 1, 1, 1, 1, 1, 1, 1, 1, 1, 4], [0, 0.000016441, 0.000032306, 0.000047516, 0.000062435, 0.000077085, 0.000091652, 0.000106376, 0.000121393, 0.000136374, 0.000150882, 0.000165157, 0.000179183, 0.000193247, 0.000207458, 0.000221808, 0.000236648], False, 3, [1, 1, 1, 1, 1, 1, 1, 1, 1, 1, 1, 1, 1, 1, 1, 1, 1, 1, 1], False), False)  # 77
sketch3.addGeometry(Part.BSplineCurve([App.Vector(0.200693, 1.201319, 0), App.Vector(0.206646, 1.201612, 0), App.Vector(0.218337, 1.202186, 0), App.Vector(0.235383, 1.204876, 0), App.Vector(0.251678, 1.208722, 0), App.Vector(0.267083, 1.214173, 0), App.Vector(0.281781, 1.220905, 0), App.Vector(0.295577, 1.229146, 0), App.Vector(0.308609, 1.238721, 0), App.Vector(0.320629, 1.249613, 0), App.Vector(0.331617, 1.261431, 0), App.Vector(0.341206, 1.274106, 0), App.Vector(0.349215, 1.287506, 0), App.Vector(0.355947, 1.301516, 0), App.Vector(0.360994, 1.316297, 0), App.Vector(0.36474, 1.331709, 0), App.Vector(0.366994, 1.34782, 0), App.Vector(0.367236, 1.358797, 0), App.Vector(0.367359, 1.36438, 0)], [4, 1, 1, 1, 1, 1, 1, 1, 1, 1, 1, 1, 1, 1, 1, 1, 4], [0, 0.000017869, 0.000035094, 0.000051686, 0.000068032, 0.000084031, 0.000100109, 0.000116155, 0.000132467, 0.000148698, 0.000164503, 0.000180049, 0.000195461, 0.000211045, 0.000226811, 0.000242988, 0.000259729], False, 3, [1, 1, 1, 1, 1, 1, 1, 1, 1, 1, 1, 1, 1, 1, 1, 1, 1, 1, 1], False), False)  # 78
sketch3.addConstraint([
    Sketcher.Constraint("Block", 26),
    Sketcher.Constraint("Block", 27),
    Sketcher.Constraint("Block", 28),
    Sketcher.Constraint("Block", 32),
    Sketcher.Constraint("Block", 33),
    Sketcher.Constraint("Block", 34),
    Sketcher.Constraint("Block", 35),
    Sketcher.Constraint("Block", 68),
    Sketcher.Constraint("Block", 69),
    Sketcher.Constraint("Block", 70),
    Sketcher.Constraint("Block", 76),
    Sketcher.Constraint("Block", 77),
    Sketcher.Constraint("Block", 78),
    Sketcher.Constraint("Coincident", 24, 2, 25, 1),
    Sketcher.Constraint("Coincident", 25, 2, 26, 2),
    Sketcher.Constraint("Coincident", 28, 1, 29, 1),
    Sketcher.Constraint("Coincident", 29, 2, 24, 1),
    Sketcher.Constraint("Coincident", 30, 2, 31, 1),
    Sketcher.Constraint("Coincident", 31, 2, 32, 2),
    Sketcher.Constraint("Coincident", 35, 1, 36, 1),
    Sketcher.Constraint("Coincident", 36, 2, 30, 1),
    Sketcher.Constraint("Coincident", 67, 2, 68, 2),
    Sketcher.Constraint("Coincident", 70, 1, 71, 1),
    Sketcher.Constraint("Coincident", 71, 2, 72, 1),
    Sketcher.Constraint("Coincident", 72, 2, 73, 1),
    Sketcher.Constraint("Coincident", 73, 2, 74, 1),
    Sketcher.Constraint("Coincident", 74, 2, 75, 1),
    Sketcher.Constraint("Coincident", 75, 2, 76, 2),
    Sketcher.Constraint("Coincident", 78, 1, 67, 1),
    Sketcher.Constraint("Vertical", 1),
    Sketcher.Constraint("Vertical", 3),
    Sketcher.Constraint("Vertical", 6),
    Sketcher.Constraint("Vertical", 8),
    Sketcher.Constraint("Vertical", 11),
    Sketcher.Constraint("Vertical", 14),
    Sketcher.Constraint("Horizontal", 15),
    Sketcher.Constraint("Vertical", 16),
    Sketcher.Constraint("Horizontal", 17),
    Sketcher.Constraint("Vertical", 18),
    Sketcher.Constraint("Horizontal", 19),
    Sketcher.Constraint("Vertical", 20),
    Sketcher.Constraint("Horizontal", 21),
    Sketcher.Constraint("Vertical", 22),
    Sketcher.Constraint("Horizontal", 23),
    Sketcher.Constraint("Horizontal", 24),
    Sketcher.Constraint("Vertical", 25),
    Sketcher.Constraint("Vertical", 29),
    Sketcher.Constraint("Horizontal", 30),
    Sketcher.Constraint("Vertical", 31),
    Sketcher.Constraint("Vertical", 36),
    Sketcher.Constraint("Vertical", 37),
    Sketcher.Constraint("Horizontal", 38),
    Sketcher.Constraint("Vertical", 39),
    Sketcher.Constraint("Horizontal", 40),
    Sketcher.Constraint("Vertical", 41),
    Sketcher.Constraint("Horizontal", 42),
    Sketcher.Constraint("Vertical", 43),
    Sketcher.Constraint("Horizontal", 44),
    Sketcher.Constraint("Vertical", 45),
    Sketcher.Constraint("Horizontal", 46),
    Sketcher.Constraint("Horizontal", 47),
    Sketcher.Constraint("Vertical", 48),
    Sketcher.Constraint("Horizontal", 49),
    Sketcher.Constraint("Vertical", 51),
    Sketcher.Constraint("Horizontal", 52),
    Sketcher.Constraint("Vertical", 53),
    Sketcher.Constraint("Horizontal", 54),
    Sketcher.Constraint("Vertical", 56),
    Sketcher.Constraint("Vertical", 57),
    Sketcher.Constraint("Horizontal", 58),
    Sketcher.Constraint("Vertical", 59),
    Sketcher.Constraint("Horizontal", 60),
    Sketcher.Constraint("Vertical", 61),
    Sketcher.Constraint("Vertical", 63),
    Sketcher.Constraint("Horizontal", 64),
    Sketcher.Constraint("Vertical", 65),
    Sketcher.Constraint("Horizontal", 66),
    Sketcher.Constraint("Vertical", 72),
    Sketcher.Constraint("Horizontal", 73),
    Sketcher.Constraint("Vertical", 74),
    Sketcher.Constraint("DistanceX", 15, 2, 15, 1, 0.5),
    Sketcher.Constraint("DistanceX", 38, 2, 38, 1, 0.5),
    Sketcher.Constraint("DistanceX", 47, 2, 47, 1, 0.5),
    Sketcher.Constraint("DistanceX", 52, 1, 52, 2, 0.5),
    Sketcher.Constraint("DistanceX", 66, 1, 66, 2, 0.5),
    Sketcher.Constraint("Diameter", 0, 0.282969),
    Sketcher.Constraint("DistanceY", 18, 2, -1, 1, 0.612998),
    Sketcher.Constraint("DistanceY", 22, 2, -1, 1, 0.612998),
    Sketcher.Constraint("DistanceX", 17, 1, 17, 2, 0.24359),
    Sketcher.Constraint("DistanceX", 40, 1, 40, 2, 0.24359),
    Sketcher.Constraint("DistanceX", 49, 1, 49, 2, 0.392628),
    Sketcher.Constraint("DistanceX", 54, 2, 54, 1, 0.39353),
    Sketcher.Constraint("DistanceY", 3, 1, 3, 2, 0.00641),
    Sketcher.Constraint("DistanceY", 6, 1, 6, 2, 0.00641),
    Sketcher.Constraint("DistanceY", 11, 2, 11, 1, 0.00651),
    Sketcher.Constraint("DistanceY", 14, 2, 14, 1, 0.24359),
    Sketcher.Constraint("DistanceY", 16, 1, 16, 2, 0.044872),
    Sketcher.Constraint("DistanceY", 29, 2, 29, 1, 0.100962),
    Sketcher.Constraint("DistanceY", 36, 2, 36, 1, 0.057392),
    Sketcher.Constraint("DistanceY", 37, 2, 37, 1, 0.24359),
    Sketcher.Constraint("DistanceY", 39, 1, 39, 2, 0.044872),
    Sketcher.Constraint("DistanceY", 48, 1, 48, 2, 0.044872),
    Sketcher.Constraint("DistanceY", 53, 2, 53, 1, 0.044872),
    Sketcher.Constraint("DistanceY", 65, 1, 65, 2, 0.044872),
    Sketcher.Constraint("DistanceY", -1, 1, 48, 2, 0.255699),
    Sketcher.Constraint("DistanceY", -1, 1, 61, 2, 0.9411),
    Sketcher.Constraint("Distance", 2, 0.51739),
    Sketcher.Constraint("Distance", 5, 0.410939),
    Sketcher.Constraint("Distance", 9, 0.377231),
    Sketcher.Constraint("Distance", 10, 0.391189),
    Sketcher.Constraint("Distance", 12, 0.394511),
    Sketcher.Constraint("Distance", 13, 0.379519),
    Sketcher.Constraint("DistanceX", 19, 1, 19, 2, 0.051282),
    Sketcher.Constraint("DistanceX", 21, 1, 21, 2, 0.153846),
    Sketcher.Constraint("DistanceX", 42, 1, 42, 2, 0.051282),
    Sketcher.Constraint("DistanceX", 44, 1, 44, 2, 0.153846),
    Sketcher.Constraint("DistanceX", 58, 1, 58, 2, 0.051282),
    Sketcher.Constraint("DistanceX", 64, 2, 64, 1, 0.448718),
    Sketcher.Constraint("DistanceX", 73, 1, 73, 2, 0.051282),
    Sketcher.Constraint("DistanceY", 1, 2, 1, 1, 0.046374),
    Sketcher.Constraint("DistanceY", 8, 2, 8, 1, 0.045873),
    Sketcher.Constraint("DistanceY", 20, 2, 20, 1, 0.198718),
    Sketcher.Constraint("DistanceY", 41, 1, 41, 2, 0.198718),
    Sketcher.Constraint("DistanceY", 43, 2, 43, 1, 0.198718),
    Sketcher.Constraint("DistanceY", 51, 1, 51, 2, 0.010216),
    Sketcher.Constraint("DistanceY", 56, 2, 56, 1, 0.009415),
    Sketcher.Constraint("DistanceY", 57, 1, 57, 2, 0.192308),
    Sketcher.Constraint("DistanceY", 61, 2, 61, 1, 0.092448),
    Sketcher.Constraint("DistanceY", 63, 1, 63, 2, 0.076923),
    Sketcher.Constraint("DistanceY", 72, 1, 72, 2, 0.339744),
    Sketcher.Constraint("DistanceY", 74, 2, 74, 1, 0.232672),
    Sketcher.Constraint("DistanceX", -1, 1, 1, 2, 0.354539),
    Sketcher.Constraint("DistanceY", 1, 2, -1, 1, 1.517949),
    Sketcher.Constraint("DistanceX", 2, 2, -1, 1, 0.145461),
    Sketcher.Constraint("DistanceX", -1, 1, 4, 2, 0.236951),
    Sketcher.Constraint("DistanceX", 5, 2, -1, 1, 0.145461),
    Sketcher.Constraint("DistanceY", 5, 2, -1, 1, 1.075841),
    Sketcher.Constraint("DistanceX", -1, 1, 7, 2, 0.354539),
    Sketcher.Constraint("DistanceY", 8, 2, -1, 1, 0.980489),
    Sketcher.Constraint("DistanceX", -1, 1, 10, 2, 0.354539),
    Sketcher.Constraint("DistanceX", -1, 1, 14, 2, 0.354539),
    Sketcher.Constraint("DistanceX", -1, 1, 37, 2, 0.354539),
    Sketcher.Constraint("DistanceY", 37, 2, -1, 1, 0.085149),
    Sketcher.Constraint("DistanceX", 47, 2, -1, 1, 0.145461),
    Sketcher.Constraint("DistanceX", 50, 2, -1, 1, 0.145461),
    Sketcher.Constraint("DistanceY", -1, 1, 53, 2, 0.550571),
    Sketcher.Constraint("DistanceY", -1, 1, 59, 2, 0.641418),
    Sketcher.Constraint("DistanceX", -1, 1, 61, 2, 0.354539),
    Sketcher.Constraint("DistanceX", 71, 2, -1, 1, 0.145461),
    Sketcher.Constraint("DistanceY", -1, 1, 71, 2, 1.182088),
    Sketcher.Constraint("DistanceX", 0, 3, -1, 1, 0.779314),
    Sketcher.Constraint("DistanceY", 0, 3, -1, 1, 1.298184),
    Sketcher.Constraint("DistanceX", 9, 2, -1, 1, 0.009644),
    Sketcher.Constraint("DistanceX", -1, 1, 57, 2, 0.021205),
])
sketch3.setExpression("Constraints[133]", "Params.sketch3_width")
sketch3.setExpression("Constraints[134]", "Params.sketch3_width2")
sketch3.setExpression("Constraints[135]", "Params.sketch3_width3")
sketch3.setExpression("Constraints[136]", "Params.sketch3_width4")
sketch3.setExpression("Constraints[137]", "Params.sketch3_width5")
pocket1 = doc.addObject("PartDesign::Pocket", "Pocket")
body.addObject(pocket1)
pocket1.Profile = sketch3
pocket1.setExpression("Length", "Params.pocket1_length")
pocket1.Reversed = True

doc.recompute()
